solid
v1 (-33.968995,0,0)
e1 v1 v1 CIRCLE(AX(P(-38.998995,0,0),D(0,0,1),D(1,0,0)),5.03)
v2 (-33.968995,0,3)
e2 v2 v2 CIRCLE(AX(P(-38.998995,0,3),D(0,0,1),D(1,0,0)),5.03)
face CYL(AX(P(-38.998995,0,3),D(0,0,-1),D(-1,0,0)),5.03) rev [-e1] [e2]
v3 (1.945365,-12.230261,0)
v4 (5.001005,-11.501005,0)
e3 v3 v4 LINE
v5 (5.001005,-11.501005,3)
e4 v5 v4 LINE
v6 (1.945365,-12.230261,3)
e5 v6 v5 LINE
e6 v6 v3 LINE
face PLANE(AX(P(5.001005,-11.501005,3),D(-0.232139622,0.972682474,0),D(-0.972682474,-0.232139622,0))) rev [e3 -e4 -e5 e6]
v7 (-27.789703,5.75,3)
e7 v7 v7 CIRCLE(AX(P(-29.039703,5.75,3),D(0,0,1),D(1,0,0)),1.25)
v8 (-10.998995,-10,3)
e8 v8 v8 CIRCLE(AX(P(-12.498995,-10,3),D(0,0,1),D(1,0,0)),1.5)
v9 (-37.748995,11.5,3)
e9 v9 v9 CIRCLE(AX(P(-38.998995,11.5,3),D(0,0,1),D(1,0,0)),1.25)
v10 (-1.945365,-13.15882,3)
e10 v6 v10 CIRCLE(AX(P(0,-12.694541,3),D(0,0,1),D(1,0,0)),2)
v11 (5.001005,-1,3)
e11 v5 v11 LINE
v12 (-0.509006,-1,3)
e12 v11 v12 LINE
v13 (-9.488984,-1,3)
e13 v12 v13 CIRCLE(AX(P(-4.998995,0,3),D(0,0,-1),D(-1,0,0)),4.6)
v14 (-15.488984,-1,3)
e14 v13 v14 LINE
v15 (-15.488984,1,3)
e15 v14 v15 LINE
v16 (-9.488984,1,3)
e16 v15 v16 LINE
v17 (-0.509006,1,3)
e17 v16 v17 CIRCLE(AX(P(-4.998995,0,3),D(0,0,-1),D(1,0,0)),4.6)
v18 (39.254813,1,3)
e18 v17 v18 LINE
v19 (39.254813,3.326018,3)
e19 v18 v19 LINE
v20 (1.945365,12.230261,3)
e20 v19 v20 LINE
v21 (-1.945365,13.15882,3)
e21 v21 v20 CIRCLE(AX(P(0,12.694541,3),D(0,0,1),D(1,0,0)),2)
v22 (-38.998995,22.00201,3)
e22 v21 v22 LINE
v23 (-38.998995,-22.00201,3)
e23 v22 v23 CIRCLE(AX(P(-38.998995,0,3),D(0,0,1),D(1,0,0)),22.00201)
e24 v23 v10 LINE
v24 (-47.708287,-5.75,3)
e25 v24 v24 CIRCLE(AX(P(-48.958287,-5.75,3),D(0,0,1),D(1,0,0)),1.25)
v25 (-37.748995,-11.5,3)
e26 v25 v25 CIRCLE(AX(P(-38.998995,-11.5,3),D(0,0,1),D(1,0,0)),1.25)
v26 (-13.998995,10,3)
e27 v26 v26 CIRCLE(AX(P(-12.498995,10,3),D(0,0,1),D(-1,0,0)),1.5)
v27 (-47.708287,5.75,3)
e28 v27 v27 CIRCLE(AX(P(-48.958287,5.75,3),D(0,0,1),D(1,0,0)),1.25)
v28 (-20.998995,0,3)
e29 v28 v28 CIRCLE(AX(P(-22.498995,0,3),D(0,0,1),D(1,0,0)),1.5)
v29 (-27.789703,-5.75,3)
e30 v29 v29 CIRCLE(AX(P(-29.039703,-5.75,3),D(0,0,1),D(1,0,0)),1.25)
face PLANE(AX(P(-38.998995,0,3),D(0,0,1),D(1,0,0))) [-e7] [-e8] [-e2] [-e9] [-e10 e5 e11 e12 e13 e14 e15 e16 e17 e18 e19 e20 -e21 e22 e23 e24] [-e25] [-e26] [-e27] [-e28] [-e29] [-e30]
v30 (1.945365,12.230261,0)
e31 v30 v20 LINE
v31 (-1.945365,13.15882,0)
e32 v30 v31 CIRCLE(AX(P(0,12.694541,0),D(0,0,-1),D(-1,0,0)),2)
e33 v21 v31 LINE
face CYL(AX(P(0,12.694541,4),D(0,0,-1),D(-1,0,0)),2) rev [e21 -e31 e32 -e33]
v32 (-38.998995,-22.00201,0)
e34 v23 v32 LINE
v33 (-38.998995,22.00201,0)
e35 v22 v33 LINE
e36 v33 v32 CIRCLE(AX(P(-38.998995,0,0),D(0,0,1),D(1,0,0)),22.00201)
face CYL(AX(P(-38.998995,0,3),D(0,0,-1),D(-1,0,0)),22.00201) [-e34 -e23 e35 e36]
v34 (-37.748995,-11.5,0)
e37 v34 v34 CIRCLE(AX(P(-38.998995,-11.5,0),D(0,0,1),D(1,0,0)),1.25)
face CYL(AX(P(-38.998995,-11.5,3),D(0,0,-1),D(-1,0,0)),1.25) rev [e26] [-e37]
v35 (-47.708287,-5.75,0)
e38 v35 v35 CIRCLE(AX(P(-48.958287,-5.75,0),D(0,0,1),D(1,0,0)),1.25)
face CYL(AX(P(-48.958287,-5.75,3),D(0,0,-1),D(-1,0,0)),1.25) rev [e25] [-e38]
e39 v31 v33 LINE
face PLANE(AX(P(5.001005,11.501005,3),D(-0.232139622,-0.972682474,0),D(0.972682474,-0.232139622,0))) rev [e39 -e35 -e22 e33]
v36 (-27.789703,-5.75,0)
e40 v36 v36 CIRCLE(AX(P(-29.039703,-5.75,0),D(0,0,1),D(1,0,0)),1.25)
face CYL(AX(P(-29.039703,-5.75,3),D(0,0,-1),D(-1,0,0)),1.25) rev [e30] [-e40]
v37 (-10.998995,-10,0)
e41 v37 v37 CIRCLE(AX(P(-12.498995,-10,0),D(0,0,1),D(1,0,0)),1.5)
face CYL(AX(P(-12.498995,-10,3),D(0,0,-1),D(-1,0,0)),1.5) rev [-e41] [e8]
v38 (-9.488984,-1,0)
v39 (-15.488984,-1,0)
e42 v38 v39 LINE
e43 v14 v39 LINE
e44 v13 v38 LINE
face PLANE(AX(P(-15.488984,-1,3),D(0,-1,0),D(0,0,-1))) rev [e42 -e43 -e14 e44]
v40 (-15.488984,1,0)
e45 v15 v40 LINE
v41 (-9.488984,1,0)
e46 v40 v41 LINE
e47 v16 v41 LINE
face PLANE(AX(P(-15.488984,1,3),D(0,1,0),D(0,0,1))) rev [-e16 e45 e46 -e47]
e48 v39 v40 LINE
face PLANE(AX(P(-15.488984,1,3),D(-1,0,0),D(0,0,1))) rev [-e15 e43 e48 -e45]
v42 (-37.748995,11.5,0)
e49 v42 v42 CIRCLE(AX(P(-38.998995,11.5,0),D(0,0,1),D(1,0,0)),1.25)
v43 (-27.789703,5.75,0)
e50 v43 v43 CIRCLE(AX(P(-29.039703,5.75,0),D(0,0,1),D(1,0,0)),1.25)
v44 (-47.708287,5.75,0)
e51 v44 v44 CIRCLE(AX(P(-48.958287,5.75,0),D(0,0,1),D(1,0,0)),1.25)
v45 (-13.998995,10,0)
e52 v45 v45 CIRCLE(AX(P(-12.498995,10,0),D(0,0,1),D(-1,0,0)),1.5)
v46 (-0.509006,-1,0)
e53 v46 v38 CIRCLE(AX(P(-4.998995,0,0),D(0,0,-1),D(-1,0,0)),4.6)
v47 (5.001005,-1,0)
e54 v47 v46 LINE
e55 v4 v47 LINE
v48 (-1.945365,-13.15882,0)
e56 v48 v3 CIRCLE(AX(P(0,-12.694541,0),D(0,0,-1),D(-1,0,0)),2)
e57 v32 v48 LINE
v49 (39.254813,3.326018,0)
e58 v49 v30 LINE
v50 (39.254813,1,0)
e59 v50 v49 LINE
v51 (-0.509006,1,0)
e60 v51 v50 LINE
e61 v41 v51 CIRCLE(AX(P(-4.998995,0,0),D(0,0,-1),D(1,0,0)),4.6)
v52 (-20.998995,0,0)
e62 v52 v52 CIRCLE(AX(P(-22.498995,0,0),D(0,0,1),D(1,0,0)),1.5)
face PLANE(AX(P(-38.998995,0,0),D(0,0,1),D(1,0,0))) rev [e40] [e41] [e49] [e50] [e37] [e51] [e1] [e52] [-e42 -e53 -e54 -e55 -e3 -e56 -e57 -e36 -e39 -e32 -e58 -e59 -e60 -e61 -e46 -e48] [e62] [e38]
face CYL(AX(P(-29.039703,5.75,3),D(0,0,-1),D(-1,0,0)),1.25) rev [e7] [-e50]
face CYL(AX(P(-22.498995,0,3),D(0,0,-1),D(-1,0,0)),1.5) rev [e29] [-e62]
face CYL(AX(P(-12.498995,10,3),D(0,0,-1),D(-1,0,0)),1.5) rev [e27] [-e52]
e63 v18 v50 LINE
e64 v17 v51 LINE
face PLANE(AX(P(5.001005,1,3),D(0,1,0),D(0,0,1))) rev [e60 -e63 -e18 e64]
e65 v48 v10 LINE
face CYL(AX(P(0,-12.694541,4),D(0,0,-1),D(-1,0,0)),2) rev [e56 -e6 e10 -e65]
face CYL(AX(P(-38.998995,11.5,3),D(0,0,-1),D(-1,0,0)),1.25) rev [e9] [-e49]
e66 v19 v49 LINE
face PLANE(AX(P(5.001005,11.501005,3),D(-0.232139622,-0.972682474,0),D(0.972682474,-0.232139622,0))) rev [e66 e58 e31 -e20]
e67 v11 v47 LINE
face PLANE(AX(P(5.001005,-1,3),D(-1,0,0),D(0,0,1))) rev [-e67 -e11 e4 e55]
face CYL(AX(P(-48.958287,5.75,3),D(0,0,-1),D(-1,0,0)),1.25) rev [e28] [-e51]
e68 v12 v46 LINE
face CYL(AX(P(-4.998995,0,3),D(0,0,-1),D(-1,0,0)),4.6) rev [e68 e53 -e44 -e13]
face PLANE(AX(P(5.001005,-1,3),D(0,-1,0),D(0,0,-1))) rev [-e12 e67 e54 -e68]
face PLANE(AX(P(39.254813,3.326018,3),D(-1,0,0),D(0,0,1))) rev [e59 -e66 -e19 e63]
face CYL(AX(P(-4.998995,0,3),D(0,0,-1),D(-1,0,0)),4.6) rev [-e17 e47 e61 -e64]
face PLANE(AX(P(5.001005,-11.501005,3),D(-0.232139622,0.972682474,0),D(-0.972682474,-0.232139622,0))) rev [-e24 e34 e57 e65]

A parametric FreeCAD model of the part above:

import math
import FreeCAD as App
import Part
import Sketcher

V = App.Vector

doc = App.newDocument("Part")
body = doc.addObject("PartDesign::Body", "Body")

# Sketch on XY plane
sketch1 = body.newObject("Sketcher::SketchObject", "Sketch")
sketch1.AttachmentSupport = (doc.getObject("XY_Plane"), [""])
sketch1.MapMode = "FlatFace"
sketch1.addGeometry([
    Part.LineSegment(V(-15.488984, 1, 0), V(-9.488984, 1, 0)),  # 0
    Part.ArcOfCircle(Part.Circle(V(-4.998995, 0, 0), V(0, 0, 1), 4.6), math.radians(12.555858), math.radians(167.444142)),  # 1
    Part.LineSegment(V(-0.509006, 1, 0), V(39.254813, 1, 0)),  # 2
    Part.LineSegment(V(39.254813, 1, 0), V(39.254813, 3.326018, 0)),  # 3
    Part.LineSegment(V(39.254813, 3.326018, 0), V(5.001005, 11.501005, 0)),  # 4
    Part.LineSegment(V(5.001005, 11.501005, 0), V(-38.998995, 22.00201, 0)),  # 5
    Part.ArcOfCircle(Part.Circle(V(-38.998995, 0, 0), V(0, 0, 1), 22.00201), math.radians(90), math.radians(270)),  # 6
    Part.LineSegment(V(-38.998995, -22.00201, 0), V(5.001005, -11.501005, 0)),  # 7
    Part.LineSegment(V(5.001005, -11.501005, 0), V(5.001005, -1, 0)),  # 8
    Part.LineSegment(V(5.001005, -1, 0), V(-0.509006, -1, 0)),  # 9
    Part.ArcOfCircle(Part.Circle(V(-4.998995, 0, 0), V(0, 0, 1), 4.6), math.radians(-167.444142), math.radians(-12.555858)),  # 10
    Part.LineSegment(V(-9.488984, -1, 0), V(-15.488984, -1, 0)),  # 11
    Part.LineSegment(V(-15.488984, -1, 0), V(-15.488984, 1, 0)),  # 12
    Part.Circle(V(-38.998995, -11.5, 0), V(0, 0, 1), 1.25),  # 13
    Part.Circle(V(-48.958287, -5.75, 0), V(0, 0, 1), 1.25),  # 14
    Part.Circle(V(-12.498995, -10, 0), V(0, 0, 1), 1.5),  # 15
    Part.Circle(V(-29.039703, -5.75, 0), V(0, 0, 1), 1.25),  # 16
    Part.Circle(V(-48.958287, 5.75, 0), V(0, 0, 1), 1.25),  # 17
    Part.Circle(V(-38.998995, 0, 0), V(0, 0, 1), 5.03),  # 18
    Part.Circle(V(-38.998995, 11.5, 0), V(0, 0, 1), 1.25),  # 19
    Part.Circle(V(-22.498995, 0, 0), V(0, 0, 1), 1.5),  # 20
    Part.Circle(V(-29.039703, 5.75, 0), V(0, 0, 1), 1.25),  # 21
    Part.Circle(V(-12.498995, 10, 0), V(0, 0, 1), 1.5),  # 22
], False)
sketch1.addConstraint([
    Sketcher.Constraint("Coincident", 0, 2, 1, 2),
    Sketcher.Constraint("Coincident", 1, 1, 2, 1),
    Sketcher.Constraint("Coincident", 2, 2, 3, 1),
    Sketcher.Constraint("Coincident", 3, 2, 4, 1),
    Sketcher.Constraint("Coincident", 4, 2, 5, 1),
    Sketcher.Constraint("Coincident", 5, 2, 6, 1),
    Sketcher.Constraint("Coincident", 6, 2, 7, 1),
    Sketcher.Constraint("Coincident", 7, 2, 8, 1),
    Sketcher.Constraint("Coincident", 8, 2, 9, 1),
    Sketcher.Constraint("Coincident", 9, 2, 10, 2),
    Sketcher.Constraint("Coincident", 10, 1, 11, 1),
    Sketcher.Constraint("Coincident", 11, 2, 12, 1),
    Sketcher.Constraint("Coincident", 12, 2, 0, 1),
    Sketcher.Constraint("Horizontal", 0),
    Sketcher.Constraint("Horizontal", 2),
    Sketcher.Constraint("Vertical", 3),
    Sketcher.Constraint("Vertical", 8),
    Sketcher.Constraint("Horizontal", 9),
    Sketcher.Constraint("Horizontal", 11),
    Sketcher.Constraint("Vertical", 12),
    Sketcher.Constraint("Coincident", 10, 3, 1, 3),
    Sketcher.Constraint("Coincident", 18, 3, 6, 3),
    Sketcher.Constraint("Equal", 1, 10),
    Sketcher.Constraint("Equal", 13, 14),
    Sketcher.Constraint("Equal", 14, 16),
    Sketcher.Constraint("Equal", 16, 17),
    Sketcher.Constraint("Equal", 17, 19),
    Sketcher.Constraint("Equal", 15, 20),
    Sketcher.Constraint("Equal", 19, 21),
    Sketcher.Constraint("Equal", 20, 22),
    Sketcher.Constraint("Symmetric", 14, 3, 17, 3, -1),
    Sketcher.Constraint("Symmetric", 13, 3, 19, 3, -1),
    Sketcher.Constraint("Symmetric", 16, 3, 21, 3, -1),
    Sketcher.Constraint("Symmetric", 15, 3, 22, 3, -1),
    Sketcher.Constraint("Symmetric", 5, 2, 6, 2, -1),
    Sketcher.Constraint("Symmetric", 4, 2, 7, 2, -1),
    Sketcher.Constraint("Symmetric", 1, 1, 9, 2, -1),
    Sketcher.Constraint("PointOnObject", 20, 3, -1),
    Sketcher.Constraint("Parallel", 4, 5),
    Sketcher.Constraint("Horizontal", 14, 3, 16, 3),
    Sketcher.Constraint("Horizontal", 0, 2, 1, 1),
    Sketcher.Constraint("Horizontal", 9, 2, 10, 1),
    Sketcher.Constraint("Vertical", 6, 3, 13, 3),
    Sketcher.Constraint("Vertical", 19, 3, 5, 2),
    Sketcher.Constraint("Diameter", 15, 3.0),
    Sketcher.Constraint("Diameter", 13, 2.5),
    Sketcher.Constraint("Radius", 1, 4.6),
    Sketcher.Constraint("Diameter", 18, 10.06),
    Sketcher.Constraint("DistanceX", 0, 1, 0, 2, 6.0),
    Sketcher.Constraint("DistanceY", 12, 1, 12, 2, 2.0),
    Sketcher.Constraint("DistanceY", 15, 3, -1, 1, 10.0),
    Sketcher.Constraint("DistanceX", 6, 3, 1, 3, 34.0),
    Sketcher.Constraint("DistanceX", 20, 3, 15, 3, 10.0),
    Sketcher.Constraint("DistanceX", 1, 3, 4, 2, 10.0),
    Sketcher.Constraint("DistanceY", 13, 3, -1, 1, 11.5),
    Sketcher.Constraint("DistanceX", 15, 3, 1, 3, 7.5),
    Sketcher.Constraint("DistanceY", 14, 3, 17, 3, 11.5),
    Sketcher.Constraint("Radius", 6, 22.00201),
    Sketcher.Constraint("DistanceX", 2, 1, 2, 2, 39.763819),
    Sketcher.Constraint("DistanceY", 3, 1, 3, 2, 2.326018),
    Sketcher.Constraint("DistanceX", 1, 3, -1, 1, 4.998995),
    Sketcher.Constraint("DistanceX", 14, 3, -1, 1, 48.958287),
    Sketcher.Constraint("DistanceX", 16, 3, -1, 1, 29.039703),
])
pad1 = body.newObject("PartDesign::Pad", "Pad")
pad1.Profile = sketch1
pad1.Length = 3

# Sketch on XY plane
sketch2 = body.newObject("Sketcher::SketchObject", "Sketch001")
sketch2.AttachmentSupport = (doc.getObject("XY_Plane"), [""])
sketch2.MapMode = "FlatFace"
sketch2.addGeometry([
    Part.Circle(V(0, 12.694541, 0), V(0, 0, 1), 2),
    Part.Circle(V(0, -12.694541, 0), V(0, 0, 1), 2),
], False)
sketch2.addConstraint([
    Sketcher.Constraint("Equal", 0, 1),
    Sketcher.Constraint("Symmetric", 0, 3, 1, 3, -1, 1),
    Sketcher.Constraint("PointOnObject", 0, 3, -2),
    Sketcher.Constraint("Diameter", 0, 4.0),
    Sketcher.Constraint("DistanceY", -1, 1, 0, 3, 12.694541),
])
pocket1 = body.newObject("PartDesign::Pocket", "Pocket")
pocket1.Profile = sketch2
pocket1.Length = 4
pocket1.Reversed = True

doc.recompute()
